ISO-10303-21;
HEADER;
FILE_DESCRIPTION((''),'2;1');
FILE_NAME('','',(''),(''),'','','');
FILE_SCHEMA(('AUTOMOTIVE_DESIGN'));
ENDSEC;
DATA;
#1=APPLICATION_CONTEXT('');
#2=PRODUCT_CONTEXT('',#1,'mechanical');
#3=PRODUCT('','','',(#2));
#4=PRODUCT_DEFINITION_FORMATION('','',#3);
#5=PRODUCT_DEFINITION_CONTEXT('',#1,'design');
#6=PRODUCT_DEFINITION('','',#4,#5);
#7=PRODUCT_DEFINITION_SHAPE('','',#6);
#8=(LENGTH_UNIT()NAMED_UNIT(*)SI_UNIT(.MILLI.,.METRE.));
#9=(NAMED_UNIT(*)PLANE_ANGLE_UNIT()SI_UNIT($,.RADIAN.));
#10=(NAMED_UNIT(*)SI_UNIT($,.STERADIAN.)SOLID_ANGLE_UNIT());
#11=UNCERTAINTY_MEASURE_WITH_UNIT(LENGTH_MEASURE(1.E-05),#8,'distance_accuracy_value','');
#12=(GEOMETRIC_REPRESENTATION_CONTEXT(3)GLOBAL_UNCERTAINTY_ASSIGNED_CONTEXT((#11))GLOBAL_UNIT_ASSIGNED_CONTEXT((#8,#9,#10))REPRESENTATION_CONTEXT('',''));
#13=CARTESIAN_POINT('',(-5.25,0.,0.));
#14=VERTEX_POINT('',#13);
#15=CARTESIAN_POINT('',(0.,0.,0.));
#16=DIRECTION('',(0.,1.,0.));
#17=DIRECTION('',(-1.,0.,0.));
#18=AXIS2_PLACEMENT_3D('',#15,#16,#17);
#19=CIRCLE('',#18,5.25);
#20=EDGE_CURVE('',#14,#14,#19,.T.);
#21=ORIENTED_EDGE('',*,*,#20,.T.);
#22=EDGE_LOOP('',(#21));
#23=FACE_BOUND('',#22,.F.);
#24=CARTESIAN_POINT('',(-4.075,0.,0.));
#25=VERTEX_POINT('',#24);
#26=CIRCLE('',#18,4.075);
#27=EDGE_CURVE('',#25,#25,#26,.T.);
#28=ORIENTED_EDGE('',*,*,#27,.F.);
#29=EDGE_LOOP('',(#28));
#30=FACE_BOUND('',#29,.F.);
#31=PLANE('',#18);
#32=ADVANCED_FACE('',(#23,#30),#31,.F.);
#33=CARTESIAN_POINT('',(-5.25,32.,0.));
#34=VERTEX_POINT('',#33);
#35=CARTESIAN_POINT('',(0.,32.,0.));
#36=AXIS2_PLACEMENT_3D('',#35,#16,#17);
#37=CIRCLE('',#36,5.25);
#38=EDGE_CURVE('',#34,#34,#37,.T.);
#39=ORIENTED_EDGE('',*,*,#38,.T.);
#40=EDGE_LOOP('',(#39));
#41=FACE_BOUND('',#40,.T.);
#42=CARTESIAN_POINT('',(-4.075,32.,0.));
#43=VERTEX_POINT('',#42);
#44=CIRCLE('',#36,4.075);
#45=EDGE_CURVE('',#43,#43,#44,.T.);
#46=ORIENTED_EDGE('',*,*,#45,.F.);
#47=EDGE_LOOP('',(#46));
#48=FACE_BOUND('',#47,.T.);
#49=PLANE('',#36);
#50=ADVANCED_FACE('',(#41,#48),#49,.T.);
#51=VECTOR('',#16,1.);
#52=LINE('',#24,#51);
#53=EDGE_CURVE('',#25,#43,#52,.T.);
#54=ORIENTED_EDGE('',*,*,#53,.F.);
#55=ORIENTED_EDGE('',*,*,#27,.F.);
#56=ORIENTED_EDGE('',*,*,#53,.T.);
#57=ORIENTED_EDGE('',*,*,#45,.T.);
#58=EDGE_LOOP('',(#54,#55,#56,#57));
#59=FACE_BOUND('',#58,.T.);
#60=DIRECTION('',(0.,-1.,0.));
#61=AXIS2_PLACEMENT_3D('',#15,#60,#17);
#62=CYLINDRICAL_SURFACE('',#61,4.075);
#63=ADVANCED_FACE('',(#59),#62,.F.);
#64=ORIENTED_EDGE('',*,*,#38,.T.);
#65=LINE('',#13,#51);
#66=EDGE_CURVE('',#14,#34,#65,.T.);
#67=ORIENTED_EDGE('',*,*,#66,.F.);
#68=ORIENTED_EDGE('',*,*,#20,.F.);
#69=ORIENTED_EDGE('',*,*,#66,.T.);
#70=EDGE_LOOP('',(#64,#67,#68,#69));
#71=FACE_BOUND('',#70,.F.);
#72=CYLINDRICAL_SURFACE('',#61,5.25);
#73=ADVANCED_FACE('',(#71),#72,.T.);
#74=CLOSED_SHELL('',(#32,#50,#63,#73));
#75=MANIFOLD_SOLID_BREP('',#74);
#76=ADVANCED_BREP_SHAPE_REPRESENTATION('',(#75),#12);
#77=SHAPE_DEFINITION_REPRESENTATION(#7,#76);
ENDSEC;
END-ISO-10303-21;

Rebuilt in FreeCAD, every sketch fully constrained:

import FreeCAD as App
import Part
import Sketcher
from FreeCAD import Vector
Q = App.Units.Quantity

doc = App.newDocument("Part")
params = doc.addObject("Spreadsheet::Sheet", "Params")
for row, (alias, value) in enumerate([
    ("sketch1_diameter", "10.5 mm"),
    ("sketch1_diameter2", "8.15 mm"),
    ("pad1_length", "32 mm"),
], start=1):
    params.set(f"A{row}", alias)
    params.set(f"B{row}", "=" + value)
    params.setAlias(f"B{row}", alias)

body = doc.addObject("PartDesign::Body", "Body")

# Sketch on XZ plane
sketch1 = body.newObject("Sketcher::SketchObject", "Sketch")
sketch1.AttachmentSupport = (doc.getObject("XZ_Plane"), [""])
sketch1.MapMode = "FlatFace"
sketch1.addGeometry(Part.Circle(Vector(0, 0, 0), Vector(0, 0, 1), 5.2), False)
sketch1.addGeometry(Part.Circle(Vector(0, 0, 0), Vector(0, 0, 1), 4.1), False)
sketch1.addConstraint(Sketcher.Constraint("Coincident", 0, 3, -1, 1))
sketch1.addConstraint(Sketcher.Constraint("Coincident", 1, 3, -1, 1))
sketch1.addConstraint(Sketcher.Constraint("Diameter", 0, Q("10.5 mm")))
sketch1.addConstraint(Sketcher.Constraint("Diameter", 1, Q("8.15 mm")))
sketch1.setExpression("Constraints[2]", "Params.sketch1_diameter")
sketch1.setExpression("Constraints[3]", "Params.sketch1_diameter2")
pad1 = body.newObject("PartDesign::Pad", "Pad")
pad1.Profile = sketch1
pad1.setExpression("Length", "Params.pad1_length")
pad1.Reversed = True

doc.recompute()
